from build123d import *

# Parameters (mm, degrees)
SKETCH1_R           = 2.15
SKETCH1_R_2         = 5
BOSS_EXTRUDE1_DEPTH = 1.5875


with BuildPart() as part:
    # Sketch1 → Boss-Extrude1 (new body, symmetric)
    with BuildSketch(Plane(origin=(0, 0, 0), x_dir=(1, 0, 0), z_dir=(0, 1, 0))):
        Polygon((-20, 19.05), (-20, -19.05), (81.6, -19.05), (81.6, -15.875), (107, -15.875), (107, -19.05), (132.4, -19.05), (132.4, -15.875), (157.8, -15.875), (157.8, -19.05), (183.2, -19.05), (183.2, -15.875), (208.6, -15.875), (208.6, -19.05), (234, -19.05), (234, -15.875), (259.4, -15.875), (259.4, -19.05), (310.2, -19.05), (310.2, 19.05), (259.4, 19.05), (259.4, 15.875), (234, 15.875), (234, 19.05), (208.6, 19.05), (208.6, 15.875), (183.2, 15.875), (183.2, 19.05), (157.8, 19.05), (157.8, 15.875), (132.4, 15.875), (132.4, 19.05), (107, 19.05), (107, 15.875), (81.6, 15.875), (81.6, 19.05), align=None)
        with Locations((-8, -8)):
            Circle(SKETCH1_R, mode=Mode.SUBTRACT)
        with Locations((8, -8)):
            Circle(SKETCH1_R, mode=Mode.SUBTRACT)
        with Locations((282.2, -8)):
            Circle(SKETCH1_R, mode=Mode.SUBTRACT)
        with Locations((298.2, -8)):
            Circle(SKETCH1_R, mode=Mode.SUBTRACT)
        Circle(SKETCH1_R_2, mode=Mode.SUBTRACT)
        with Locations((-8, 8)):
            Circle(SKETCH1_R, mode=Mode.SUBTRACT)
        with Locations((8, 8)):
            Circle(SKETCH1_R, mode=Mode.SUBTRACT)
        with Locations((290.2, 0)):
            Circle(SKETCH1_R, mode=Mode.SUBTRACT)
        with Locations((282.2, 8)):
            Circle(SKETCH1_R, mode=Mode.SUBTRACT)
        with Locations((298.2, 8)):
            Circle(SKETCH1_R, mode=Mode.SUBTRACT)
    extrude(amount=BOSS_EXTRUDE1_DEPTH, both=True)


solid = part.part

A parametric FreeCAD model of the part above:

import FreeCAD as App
import Part
import Sketcher
Q = App.Units.Quantity

doc = App.newDocument("Part")
params = doc.addObject("Spreadsheet::Sheet", "Params")
for row, (alias, value) in enumerate([
    ("sketch1_width", "4 in"),
    ("sketch1_width2", "1 in"),
    ("sketch1_width3", "2 in"),
    ("sketch1_height", "1.5 in"),
    ("sketch1_height2", "0.125 in"),
    ("pad1_length", "0.125 in"),
], start=1):
    params.set(f"A{row}", alias)
    params.set(f"B{row}", "=" + value)
    params.setAlias(f"B{row}", alias)

body = doc.addObject("PartDesign::Body", "Body")

sketch1 = doc.addObject("Sketcher::SketchObject", "Sketch")
body.addObject(sketch1)
sketch1.AttachmentSupport = (doc.XZ_Plane, [""])
sketch1.MapMode = "FlatFace"
sketch1.addGeometry(Part.LineSegment(App.Vector(-20, -19.1, 0), App.Vector(-20, 19.1, 0)), False)
sketch1.addGeometry(Part.LineSegment(App.Vector(-20, 19.1, 0), App.Vector(81.6, 19.1, 0)), False)
sketch1.addGeometry(Part.LineSegment(App.Vector(81.6, 19.1, 0), App.Vector(81.6, 15.9, 0)), False)
sketch1.addGeometry(Part.LineSegment(App.Vector(81.6, 15.9, 0), App.Vector(107, 15.9, 0)), False)
sketch1.addGeometry(Part.LineSegment(App.Vector(107, 15.9, 0), App.Vector(107, 19.1, 0)), False)
sketch1.addGeometry(Part.LineSegment(App.Vector(107, 19.1, 0), App.Vector(132.4, 19.1, 0)), False)
sketch1.addGeometry(Part.LineSegment(App.Vector(132.4, 19.1, 0), App.Vector(132.4, 15.9, 0)), False)
sketch1.addGeometry(Part.LineSegment(App.Vector(132.4, 15.9, 0), App.Vector(157.8, 15.9, 0)), False)
sketch1.addGeometry(Part.LineSegment(App.Vector(157.8, 15.9, 0), App.Vector(157.8, 19.1, 0)), False)
sketch1.addGeometry(Part.LineSegment(App.Vector(157.8, 19.1, 0), App.Vector(183.2, 19.1, 0)), False)
sketch1.addGeometry(Part.LineSegment(App.Vector(183.2, 19.1, 0), App.Vector(183.2, 15.9, 0)), False)
sketch1.addGeometry(Part.LineSegment(App.Vector(183.2, 15.9, 0), App.Vector(208.6, 15.9, 0)), False)
sketch1.addGeometry(Part.LineSegment(App.Vector(208.6, 15.9, 0), App.Vector(208.6, 19.1, 0)), False)
sketch1.addGeometry(Part.LineSegment(App.Vector(208.6, 19.1, 0), App.Vector(234, 19.1, 0)), False)
sketch1.addGeometry(Part.LineSegment(App.Vector(234, 19.1, 0), App.Vector(234, 15.9, 0)), False)
sketch1.addGeometry(Part.LineSegment(App.Vector(234, 15.9, 0), App.Vector(259.4, 15.9, 0)), False)
sketch1.addGeometry(Part.LineSegment(App.Vector(259.4, 15.9, 0), App.Vector(259.4, 19.1, 0)), False)
sketch1.addGeometry(Part.LineSegment(App.Vector(259.4, 19.1, 0), App.Vector(310.2, 19.1, 0)), False)
sketch1.addGeometry(Part.LineSegment(App.Vector(310.2, 19.1, 0), App.Vector(310.2, -19.1, 0)), False)
sketch1.addGeometry(Part.LineSegment(App.Vector(310.2, -19.1, 0), App.Vector(259.4, -19.1, 0)), False)
sketch1.addGeometry(Part.LineSegment(App.Vector(259.4, -19.1, 0), App.Vector(259.4, -15.9, 0)), False)
sketch1.addGeometry(Part.LineSegment(App.Vector(259.4, -15.9, 0), App.Vector(234, -15.9, 0)), False)
sketch1.addGeometry(Part.LineSegment(App.Vector(234, -15.9, 0), App.Vector(234, -19.1, 0)), False)
sketch1.addGeometry(Part.LineSegment(App.Vector(234, -19.1, 0), App.Vector(208.6, -19.1, 0)), False)
sketch1.addGeometry(Part.LineSegment(App.Vector(208.6, -19.1, 0), App.Vector(208.6, -15.9, 0)), False)
sketch1.addGeometry(Part.LineSegment(App.Vector(208.6, -15.9, 0), App.Vector(183.2, -15.9, 0)), False)
sketch1.addGeometry(Part.LineSegment(App.Vector(183.2, -15.9, 0), App.Vector(183.2, -19.1, 0)), False)
sketch1.addGeometry(Part.LineSegment(App.Vector(183.2, -19.1, 0), App.Vector(157.8, -19.1, 0)), False)
sketch1.addGeometry(Part.LineSegment(App.Vector(157.8, -19.1, 0), App.Vector(157.8, -15.9, 0)), False)
sketch1.addGeometry(Part.LineSegment(App.Vector(157.8, -15.9, 0), App.Vector(132.4, -15.9, 0)), False)
sketch1.addGeometry(Part.LineSegment(App.Vector(132.4, -15.9, 0), App.Vector(132.4, -19.1, 0)), False)
sketch1.addGeometry(Part.LineSegment(App.Vector(132.4, -19.1, 0), App.Vector(107, -19.1, 0)), False)
sketch1.addGeometry(Part.LineSegment(App.Vector(107, -19.1, 0), App.Vector(107, -15.9, 0)), False)
sketch1.addGeometry(Part.LineSegment(App.Vector(107, -15.9, 0), App.Vector(81.6, -15.9, 0)), False)
sketch1.addGeometry(Part.LineSegment(App.Vector(81.6, -15.9, 0), App.Vector(81.6, -19.1, 0)), False)
sketch1.addGeometry(Part.LineSegment(App.Vector(81.6, -19.1, 0), App.Vector(-20, -19.1, 0)), False)
sketch1.addGeometry(Part.Circle(App.Vector(-8, 8, 0), App.Vector(0, 0, 1), 2.1), False)
sketch1.addGeometry(Part.Circle(App.Vector(8, 8, 0), App.Vector(0, 0, 1), 2.1), False)
sketch1.addGeometry(Part.Circle(App.Vector(0, 0, 0), App.Vector(0, 0, 1), 5), False)
sketch1.addGeometry(Part.Circle(App.Vector(282.2, 8, 0), App.Vector(0, 0, 1), 2.1), False)
sketch1.addGeometry(Part.Circle(App.Vector(298.2, 8, 0), App.Vector(0, 0, 1), 2.1), False)
sketch1.addGeometry(Part.Circle(App.Vector(290.2, 0, 0), App.Vector(0, 0, 1), 2.1), False)
sketch1.addGeometry(Part.Circle(App.Vector(-8, -8, 0), App.Vector(0, 0, 1), 2.1), False)
sketch1.addGeometry(Part.Circle(App.Vector(8, -8, 0), App.Vector(0, 0, 1), 2.1), False)
sketch1.addGeometry(Part.Circle(App.Vector(282.2, -8, 0), App.Vector(0, 0, 1), 2.1), False)
sketch1.addGeometry(Part.Circle(App.Vector(298.2, -8, 0), App.Vector(0, 0, 1), 2.1), False)
sketch1.addConstraint(Sketcher.Constraint("Coincident", 0, 2, 1, 1))
sketch1.addConstraint(Sketcher.Constraint("Coincident", 1, 2, 2, 1))
sketch1.addConstraint(Sketcher.Constraint("Coincident", 2, 2, 3, 1))
sketch1.addConstraint(Sketcher.Constraint("Coincident", 3, 2, 4, 1))
sketch1.addConstraint(Sketcher.Constraint("Coincident", 4, 2, 5, 1))
sketch1.addConstraint(Sketcher.Constraint("Coincident", 5, 2, 6, 1))
sketch1.addConstraint(Sketcher.Constraint("Coincident", 6, 2, 7, 1))
sketch1.addConstraint(Sketcher.Constraint("Coincident", 7, 2, 8, 1))
sketch1.addConstraint(Sketcher.Constraint("Coincident", 8, 2, 9, 1))
sketch1.addConstraint(Sketcher.Constraint("Coincident", 9, 2, 10, 1))
sketch1.addConstraint(Sketcher.Constraint("Coincident", 10, 2, 11, 1))
sketch1.addConstraint(Sketcher.Constraint("Coincident", 11, 2, 12, 1))
sketch1.addConstraint(Sketcher.Constraint("Coincident", 12, 2, 13, 1))
sketch1.addConstraint(Sketcher.Constraint("Coincident", 13, 2, 14, 1))
sketch1.addConstraint(Sketcher.Constraint("Coincident", 14, 2, 15, 1))
sketch1.addConstraint(Sketcher.Constraint("Coincident", 15, 2, 16, 1))
sketch1.addConstraint(Sketcher.Constraint("Coincident", 16, 2, 17, 1))
sketch1.addConstraint(Sketcher.Constraint("Coincident", 17, 2, 18, 1))
sketch1.addConstraint(Sketcher.Constraint("Coincident", 18, 2, 19, 1))
sketch1.addConstraint(Sketcher.Constraint("Coincident", 19, 2, 20, 1))
sketch1.addConstraint(Sketcher.Constraint("Coincident", 20, 2, 21, 1))
sketch1.addConstraint(Sketcher.Constraint("Coincident", 21, 2, 22, 1))
sketch1.addConstraint(Sketcher.Constraint("Coincident", 22, 2, 23, 1))
sketch1.addConstraint(Sketcher.Constraint("Coincident", 23, 2, 24, 1))
sketch1.addConstraint(Sketcher.Constraint("Coincident", 24, 2, 25, 1))
sketch1.addConstraint(Sketcher.Constraint("Coincident", 25, 2, 26, 1))
sketch1.addConstraint(Sketcher.Constraint("Coincident", 26, 2, 27, 1))
sketch1.addConstraint(Sketcher.Constraint("Coincident", 27, 2, 28, 1))
sketch1.addConstraint(Sketcher.Constraint("Coincident", 28, 2, 29, 1))
sketch1.addConstraint(Sketcher.Constraint("Coincident", 29, 2, 30, 1))
sketch1.addConstraint(Sketcher.Constraint("Coincident", 30, 2, 31, 1))
sketch1.addConstraint(Sketcher.Constraint("Coincident", 31, 2, 32, 1))
sketch1.addConstraint(Sketcher.Constraint("Coincident", 32, 2, 33, 1))
sketch1.addConstraint(Sketcher.Constraint("Coincident", 33, 2, 34, 1))
sketch1.addConstraint(Sketcher.Constraint("Coincident", 34, 2, 35, 1))
sketch1.addConstraint(Sketcher.Constraint("Coincident", 35, 2, 0, 1))
sketch1.addConstraint(Sketcher.Constraint("Vertical", 0))
sketch1.addConstraint(Sketcher.Constraint("Horizontal", 1))
sketch1.addConstraint(Sketcher.Constraint("Vertical", 2))
sketch1.addConstraint(Sketcher.Constraint("Horizontal", 3))
sketch1.addConstraint(Sketcher.Constraint("Vertical", 4))
sketch1.addConstraint(Sketcher.Constraint("Horizontal", 5))
sketch1.addConstraint(Sketcher.Constraint("Vertical", 6))
sketch1.addConstraint(Sketcher.Constraint("Horizontal", 7))
sketch1.addConstraint(Sketcher.Constraint("Vertical", 8))
sketch1.addConstraint(Sketcher.Constraint("Horizontal", 9))
sketch1.addConstraint(Sketcher.Constraint("Vertical", 10))
sketch1.addConstraint(Sketcher.Constraint("Horizontal", 11))
sketch1.addConstraint(Sketcher.Constraint("Vertical", 12))
sketch1.addConstraint(Sketcher.Constraint("Horizontal", 13))
sketch1.addConstraint(Sketcher.Constraint("Vertical", 14))
sketch1.addConstraint(Sketcher.Constraint("Horizontal", 15))
sketch1.addConstraint(Sketcher.Constraint("Vertical", 16))
sketch1.addConstraint(Sketcher.Constraint("Horizontal", 17))
sketch1.addConstraint(Sketcher.Constraint("Vertical", 18))
sketch1.addConstraint(Sketcher.Constraint("Horizontal", 19))
sketch1.addConstraint(Sketcher.Constraint("Vertical", 20))
sketch1.addConstraint(Sketcher.Constraint("Horizontal", 21))
sketch1.addConstraint(Sketcher.Constraint("Vertical", 22))
sketch1.addConstraint(Sketcher.Constraint("Horizontal", 23))
sketch1.addConstraint(Sketcher.Constraint("Vertical", 24))
sketch1.addConstraint(Sketcher.Constraint("Horizontal", 25))
sketch1.addConstraint(Sketcher.Constraint("Vertical", 26))
sketch1.addConstraint(Sketcher.Constraint("Horizontal", 27))
sketch1.addConstraint(Sketcher.Constraint("Vertical", 28))
sketch1.addConstraint(Sketcher.Constraint("Horizontal", 29))
sketch1.addConstraint(Sketcher.Constraint("Vertical", 30))
sketch1.addConstraint(Sketcher.Constraint("Horizontal", 31))
sketch1.addConstraint(Sketcher.Constraint("Vertical", 32))
sketch1.addConstraint(Sketcher.Constraint("Horizontal", 33))
sketch1.addConstraint(Sketcher.Constraint("Vertical", 34))
sketch1.addConstraint(Sketcher.Constraint("Horizontal", 35))
sketch1.addConstraint(Sketcher.Constraint("Coincident", 38, 3, -1, 1))
sketch1.addConstraint(Sketcher.Constraint("Equal", 36, 37))
sketch1.addConstraint(Sketcher.Constraint("Equal", 37, 39))
sketch1.addConstraint(Sketcher.Constraint("Equal", 39, 40))
sketch1.addConstraint(Sketcher.Constraint("Equal", 40, 41))
sketch1.addConstraint(Sketcher.Constraint("Equal", 41, 42))
sketch1.addConstraint(Sketcher.Constraint("Equal", 42, 43))
sketch1.addConstraint(Sketcher.Constraint("Equal", 43, 44))
sketch1.addConstraint(Sketcher.Constraint("Equal", 44, 45))
sketch1.addConstraint(Sketcher.Constraint("Symmetric", 37, 3, 42, 3, -1, 1))
sketch1.addConstraint(Sketcher.Constraint("Symmetric", 36, 3, 43, 3, -1, 1))
sketch1.addConstraint(Sketcher.Constraint("Symmetric", 36, 3, 37, 3, -2))
sketch1.addConstraint(Sketcher.Constraint("Symmetric", 39, 3, 44, 3, -1))
sketch1.addConstraint(Sketcher.Constraint("Symmetric", 40, 3, 45, 3, -1))
sketch1.addConstraint(Sketcher.Constraint("Symmetric", 16, 2, 19, 2, -1))
sketch1.addConstraint(Sketcher.Constraint("Symmetric", 14, 2, 21, 2, -1))
sketch1.addConstraint(Sketcher.Constraint("Symmetric", 12, 2, 23, 2, -1))
sketch1.addConstraint(Sketcher.Constraint("Symmetric", 10, 2, 25, 2, -1))
sketch1.addConstraint(Sketcher.Constraint("Symmetric", 8, 2, 27, 2, -1))
sketch1.addConstraint(Sketcher.Constraint("Symmetric", 6, 2, 29, 2, -1))
sketch1.addConstraint(Sketcher.Constraint("Symmetric", 4, 2, 31, 2, -1))
sketch1.addConstraint(Sketcher.Constraint("Symmetric", 2, 2, 33, 2, -1))
sketch1.addConstraint(Sketcher.Constraint("PointOnObject", 41, 3, -1))
sketch1.addConstraint(Sketcher.Constraint("Horizontal", 37, 3, 39, 3))
sketch1.addConstraint(Sketcher.Constraint("Horizontal", 39, 3, 40, 3))
sketch1.addConstraint(Sketcher.Constraint("Horizontal", 1, 2, 4, 2))
sketch1.addConstraint(Sketcher.Constraint("Horizontal", 3, 2, 6, 2))
sketch1.addConstraint(Sketcher.Constraint("Horizontal", 5, 2, 8, 2))
sketch1.addConstraint(Sketcher.Constraint("Horizontal", 7, 2, 10, 2))
sketch1.addConstraint(Sketcher.Constraint("Horizontal", 9, 2, 12, 2))
sketch1.addConstraint(Sketcher.Constraint("Horizontal", 11, 2, 14, 2))
sketch1.addConstraint(Sketcher.Constraint("Horizontal", 13, 2, 16, 2))
sketch1.addConstraint(Sketcher.Constraint("Horizontal", 31, 2, 34, 2))
sketch1.addConstraint(Sketcher.Constraint("Equal", 3, 5))
sketch1.addConstraint(Sketcher.Constraint("Equal", 5, 7))
sketch1.addConstraint(Sketcher.Constraint("Equal", 7, 9))
sketch1.addConstraint(Sketcher.Constraint("Equal", 9, 11))
sketch1.addConstraint(Sketcher.Constraint("Equal", 11, 13))
sketch1.addConstraint(Sketcher.Constraint("Equal", 13, 15))
sketch1.addConstraint(Sketcher.Constraint("DistanceX", 1, 1, 1, 2, Q("4 in")))
sketch1.addConstraint(Sketcher.Constraint("DistanceX", 3, 1, 3, 2, Q("1 in")))
sketch1.addConstraint(Sketcher.Constraint("DistanceX", 17, 1, 17, 2, Q("2 in")))
sketch1.addConstraint(Sketcher.Constraint("DistanceY", 0, 1, 0, 2, Q("1.5 in")))
sketch1.addConstraint(Sketcher.Constraint("Diameter", 36, Q("4.3 mm")))
sketch1.addConstraint(Sketcher.Constraint("Diameter", 38, Q("10 mm")))
sketch1.addConstraint(Sketcher.Constraint("DistanceY", 2, 2, 2, 1, Q("0.125 in")))
sketch1.addConstraint(Sketcher.Constraint("DistanceX", 36, 3, -1, 1, Q("8 mm")))
sketch1.addConstraint(Sketcher.Constraint("DistanceY", -1, 1, 36, 3, Q("8 mm")))
sketch1.addConstraint(Sketcher.Constraint("DistanceX", -1, 1, 39, 3, Q("282.2 mm")))
sketch1.addConstraint(Sketcher.Constraint("DistanceX", -1, 1, 40, 3, Q("298.2 mm")))
sketch1.addConstraint(Sketcher.Constraint("DistanceX", -1, 1, 41, 3, Q("290.2 mm")))
sketch1.addConstraint(Sketcher.Constraint("DistanceX", 0, 2, -1, 1, Q("20 mm")))
sketch1.setExpression("Constraints[111]", "Params.sketch1_width")
sketch1.setExpression("Constraints[112]", "Params.sketch1_width2")
sketch1.setExpression("Constraints[113]", "Params.sketch1_width3")
sketch1.setExpression("Constraints[114]", "Params.sketch1_height")
sketch1.setExpression("Constraints[117]", "Params.sketch1_height2")
pad1 = doc.addObject("PartDesign::Pad", "Pad")
body.addObject(pad1)
pad1.Profile = sketch1
pad1.setExpression("Length", "Params.pad1_length")
pad1.Midplane = True

doc.recompute()
